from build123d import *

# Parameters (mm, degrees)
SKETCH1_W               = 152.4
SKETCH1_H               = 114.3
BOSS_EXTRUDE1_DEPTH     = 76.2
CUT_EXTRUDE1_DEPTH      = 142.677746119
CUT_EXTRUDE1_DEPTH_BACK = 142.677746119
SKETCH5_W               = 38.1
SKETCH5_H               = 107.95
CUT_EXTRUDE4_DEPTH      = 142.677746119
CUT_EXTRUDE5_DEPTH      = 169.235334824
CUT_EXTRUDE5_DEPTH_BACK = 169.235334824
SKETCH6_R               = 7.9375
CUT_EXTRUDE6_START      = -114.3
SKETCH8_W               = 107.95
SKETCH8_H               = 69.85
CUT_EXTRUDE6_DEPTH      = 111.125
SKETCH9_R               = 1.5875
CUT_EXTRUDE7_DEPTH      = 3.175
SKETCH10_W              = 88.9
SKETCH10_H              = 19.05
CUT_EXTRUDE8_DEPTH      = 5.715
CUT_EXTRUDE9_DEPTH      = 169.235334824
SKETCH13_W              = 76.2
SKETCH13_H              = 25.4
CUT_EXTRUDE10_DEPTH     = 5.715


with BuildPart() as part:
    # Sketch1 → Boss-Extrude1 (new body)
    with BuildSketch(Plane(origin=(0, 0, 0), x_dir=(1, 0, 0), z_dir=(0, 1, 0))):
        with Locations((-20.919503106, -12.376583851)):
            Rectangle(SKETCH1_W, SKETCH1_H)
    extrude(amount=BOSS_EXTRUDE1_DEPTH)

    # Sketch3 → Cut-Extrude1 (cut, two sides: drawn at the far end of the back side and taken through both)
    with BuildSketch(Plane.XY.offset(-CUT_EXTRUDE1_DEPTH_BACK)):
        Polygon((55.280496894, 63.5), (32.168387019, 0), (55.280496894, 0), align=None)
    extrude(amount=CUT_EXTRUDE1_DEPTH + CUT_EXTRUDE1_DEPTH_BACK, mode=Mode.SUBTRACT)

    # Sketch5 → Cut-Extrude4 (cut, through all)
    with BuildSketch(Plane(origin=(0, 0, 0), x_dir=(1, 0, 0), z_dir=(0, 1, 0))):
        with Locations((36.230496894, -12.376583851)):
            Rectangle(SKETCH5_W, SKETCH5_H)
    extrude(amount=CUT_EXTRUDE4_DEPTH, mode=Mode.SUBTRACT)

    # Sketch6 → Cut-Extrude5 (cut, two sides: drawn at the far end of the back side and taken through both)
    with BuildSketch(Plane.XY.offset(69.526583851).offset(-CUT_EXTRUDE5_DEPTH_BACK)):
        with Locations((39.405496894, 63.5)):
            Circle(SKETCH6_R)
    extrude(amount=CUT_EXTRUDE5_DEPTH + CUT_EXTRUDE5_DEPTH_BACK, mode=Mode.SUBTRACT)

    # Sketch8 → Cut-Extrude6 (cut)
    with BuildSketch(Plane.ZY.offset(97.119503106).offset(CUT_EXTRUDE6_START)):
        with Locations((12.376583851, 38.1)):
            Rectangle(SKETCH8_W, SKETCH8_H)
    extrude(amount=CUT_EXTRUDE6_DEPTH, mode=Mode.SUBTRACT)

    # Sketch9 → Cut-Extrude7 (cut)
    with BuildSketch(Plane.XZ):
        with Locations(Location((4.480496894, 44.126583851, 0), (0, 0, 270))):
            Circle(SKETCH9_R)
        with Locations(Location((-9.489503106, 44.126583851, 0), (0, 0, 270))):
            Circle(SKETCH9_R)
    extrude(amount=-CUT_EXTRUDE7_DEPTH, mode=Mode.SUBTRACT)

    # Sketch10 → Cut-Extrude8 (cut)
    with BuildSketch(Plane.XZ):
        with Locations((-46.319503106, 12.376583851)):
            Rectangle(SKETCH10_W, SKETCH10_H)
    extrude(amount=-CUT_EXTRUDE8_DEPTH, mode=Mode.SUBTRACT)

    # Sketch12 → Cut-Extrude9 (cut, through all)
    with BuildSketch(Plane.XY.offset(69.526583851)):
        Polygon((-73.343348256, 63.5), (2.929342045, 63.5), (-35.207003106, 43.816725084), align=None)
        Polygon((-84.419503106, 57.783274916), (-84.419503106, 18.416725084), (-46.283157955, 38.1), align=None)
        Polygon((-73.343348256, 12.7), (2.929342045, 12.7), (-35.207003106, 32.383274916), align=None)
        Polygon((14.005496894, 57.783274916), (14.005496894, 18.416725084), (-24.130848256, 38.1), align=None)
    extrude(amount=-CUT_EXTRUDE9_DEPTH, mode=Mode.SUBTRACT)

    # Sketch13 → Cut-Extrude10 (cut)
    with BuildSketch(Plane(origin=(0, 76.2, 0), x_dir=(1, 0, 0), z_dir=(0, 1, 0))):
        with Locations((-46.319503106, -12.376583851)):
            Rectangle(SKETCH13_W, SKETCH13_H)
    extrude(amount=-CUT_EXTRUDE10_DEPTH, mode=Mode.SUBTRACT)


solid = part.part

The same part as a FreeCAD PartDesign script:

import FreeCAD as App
import Part
import Sketcher
from FreeCAD import Vector
Q = App.Units.Quantity

doc = App.newDocument("Part")
body = doc.addObject("PartDesign::Body", "Body")

# Sketch on XZ plane
sketch1 = body.newObject("Sketcher::SketchObject", "Sketch")
sketch1.AttachmentSupport = (doc.getObject("XZ_Plane"), [""])
sketch1.MapMode = "FlatFace"
sketch1.addGeometry([
    Part.LineSegment(Vector(-97, -45, 0), Vector(-97, 70, 0)),
    Part.LineSegment(Vector(-97, 70, 0), Vector(55, 70, 0)),
    Part.LineSegment(Vector(55, 70, 0), Vector(55, -45, 0)),
    Part.LineSegment(Vector(55, -45, 0), Vector(-97, -45, 0)),
], False)
sketch1.addConstraint([
    Sketcher.Constraint("Coincident", 0, 2, 1, 1),
    Sketcher.Constraint("Coincident", 1, 2, 2, 1),
    Sketcher.Constraint("Coincident", 2, 2, 3, 1),
    Sketcher.Constraint("Coincident", 3, 2, 0, 1),
    Sketcher.Constraint("Vertical", 0),
    Sketcher.Constraint("Horizontal", 1),
    Sketcher.Constraint("Vertical", 2),
    Sketcher.Constraint("Horizontal", 3),
    Sketcher.Constraint("DistanceX", 1, 1, 1, 2, Q("6 in")),
    Sketcher.Constraint("DistanceY", 0, 1, 0, 2, Q("4.5 in")),
    Sketcher.Constraint("DistanceX", 0, 2, -1, 1, Q("97.119503 mm")),
    Sketcher.Constraint("DistanceY", -1, 1, 0, 2, Q("69.526584 mm")),
])
pad1 = body.newObject("PartDesign::Pad", "Pad")
pad1.Profile = sketch1
pad1.Length = Q("3 in")
pad1.Reversed = True

# Sketch on XY plane
sketch2 = body.newObject("Sketcher::SketchObject", "Sketch001")
sketch2.AttachmentSupport = (doc.getObject("XY_Plane"), [""])
sketch2.MapMode = "FlatFace"
sketch2.addGeometry([
    Part.LineSegment(Vector(55, 64, 0), Vector(32, 0, 0)),
    Part.LineSegment(Vector(32, 0, 0), Vector(55, 0, 0)),
    Part.LineSegment(Vector(55, 0, 0), Vector(55, 64, 0)),
], False)
sketch2.addConstraint([
    Sketcher.Constraint("Coincident", 0, 2, 1, 1),
    Sketcher.Constraint("Coincident", 1, 2, 2, 1),
    Sketcher.Constraint("Coincident", 2, 2, 0, 1),
    Sketcher.Constraint("Horizontal", 1),
    Sketcher.Constraint("Vertical", 2),
    Sketcher.Constraint("PointOnObject", 0, 2, -1),
    Sketcher.Constraint("DistanceY", 2, 1, 2, 2, Q("2.5 in")),
    Sketcher.Constraint("Angle", 0, Q("-110 deg")),
    Sketcher.Constraint("DistanceX", -1, 1, 0, 2, Q("32.168387 mm")),
])
pocket1 = body.newObject("PartDesign::Pocket", "Pocket")
pocket1.Profile = sketch2
pocket1.Type = "ThroughAll"
pocket1.Midplane = True

# Sketch on XZ plane
sketch3 = body.newObject("Sketcher::SketchObject", "Sketch002")
sketch3.AttachmentSupport = (doc.getObject("XZ_Plane"), [""])
sketch3.MapMode = "FlatFace"
sketch3.addGeometry([
    Part.LineSegment(Vector(17, -42, 0), Vector(17, 66, 0)),
    Part.LineSegment(Vector(17, 66, 0), Vector(55, 66, 0)),
    Part.LineSegment(Vector(55, 66, 0), Vector(55, -42, 0)),
    Part.LineSegment(Vector(55, -42, 0), Vector(17, -42, 0)),
], False)
sketch3.addConstraint([
    Sketcher.Constraint("Coincident", 0, 2, 1, 1),
    Sketcher.Constraint("Coincident", 1, 2, 2, 1),
    Sketcher.Constraint("Coincident", 2, 2, 3, 1),
    Sketcher.Constraint("Coincident", 3, 2, 0, 1),
    Sketcher.Constraint("Vertical", 0),
    Sketcher.Constraint("Horizontal", 1),
    Sketcher.Constraint("Vertical", 2),
    Sketcher.Constraint("Horizontal", 3),
    Sketcher.Constraint("DistanceX", 1, 1, 1, 2, Q("1.5 in")),
    Sketcher.Constraint("DistanceY", 0, 1, 0, 2, Q("4.25 in")),
    Sketcher.Constraint("DistanceX", -1, 1, 0, 2, Q("17.180497 mm")),
    Sketcher.Constraint("DistanceY", -1, 1, 0, 2, Q("66.351584 mm")),
])
pocket2 = body.newObject("PartDesign::Pocket", "Pocket001")
pocket2.Profile = sketch3
pocket2.Type = "ThroughAll"

# Sketch on XY plane
sketch4 = body.newObject("Sketcher::SketchObject", "Sketch003")
sketch4.AttachmentSupport = (doc.getObject("XY_Plane"), [""])
sketch4.MapMode = "FlatFace"
sketch4.AttachmentOffset = App.Placement(Vector(0, 0, 69.526584), App.Rotation())
sketch4.addGeometry(Part.Circle(Vector(39, 64, 0), Vector(0, 0, 1), 8), False)
sketch4.addConstraint([
    Sketcher.Constraint("Diameter", 0, Q("0.625 in")),
    Sketcher.Constraint("DistanceY", -1, 1, 0, 3, Q("2.5 in")),
    Sketcher.Constraint("DistanceX", -1, 1, 0, 3, Q("39.405497 mm")),
])
pocket3 = body.newObject("PartDesign::Pocket", "Pocket002")
pocket3.Profile = sketch4
pocket3.Type = "ThroughAll"
pocket3.Midplane = True

# Sketch on YZ plane
sketch5 = body.newObject("Sketcher::SketchObject", "Sketch004")
sketch5.AttachmentSupport = (doc.getObject("YZ_Plane"), [""])
sketch5.MapMode = "FlatFace"
sketch5.AttachmentOffset = App.Placement(Vector(0, 0, 17.180497), App.Rotation())
sketch5.addGeometry([
    Part.LineSegment(Vector(73, -42, 0), Vector(3, -42, 0)),
    Part.LineSegment(Vector(3, -42, 0), Vector(3, 66, 0)),
    Part.LineSegment(Vector(3, 66, 0), Vector(73, 66, 0)),
    Part.LineSegment(Vector(73, 66, 0), Vector(73, -42, 0)),
], False)
sketch5.addConstraint([
    Sketcher.Constraint("Coincident", 0, 2, 1, 1),
    Sketcher.Constraint("Coincident", 1, 2, 2, 1),
    Sketcher.Constraint("Coincident", 2, 2, 3, 1),
    Sketcher.Constraint("Coincident", 3, 2, 0, 1),
    Sketcher.Constraint("Horizontal", 0),
    Sketcher.Constraint("Vertical", 1),
    Sketcher.Constraint("Horizontal", 2),
    Sketcher.Constraint("Vertical", 3),
    Sketcher.Constraint("DistanceX", 0, 2, 0, 1, Q("2.75 in")),
    Sketcher.Constraint("DistanceY", 1, 1, 1, 2, Q("4.25 in")),
    Sketcher.Constraint("DistanceX", -1, 1, 0, 2, Q("0.125 in")),
    Sketcher.Constraint("DistanceY", 0, 2, -1, 1, Q("41.598416 mm")),
])
pocket4 = body.newObject("PartDesign::Pocket", "Pocket003")
pocket4.Profile = sketch5
pocket4.Length = Q("4.375 in")

# Sketch on XZ plane
sketch6 = body.newObject("Sketcher::SketchObject", "Sketch005")
sketch6.AttachmentSupport = (doc.getObject("XZ_Plane"), [""])
sketch6.MapMode = "FlatFace"
sketch6.addGeometry([
    Part.Circle(Vector(4.5, 44.1, 0), Vector(0, 0, 1), 1.6),
    Part.Circle(Vector(-9.5, 44.1, 0), Vector(0, 0, 1), 1.6),
], False)
sketch6.addConstraint([
    Sketcher.Constraint("Equal", 0, 1),
    Sketcher.Constraint("Horizontal", 0, 3, 1, 3),
    Sketcher.Constraint("Diameter", 0, Q("0.125 in")),
    Sketcher.Constraint("DistanceX", 1, 3, 0, 3, Q("0.55 in")),
    Sketcher.Constraint("DistanceX", -1, 1, 0, 3, Q("4.480497 mm")),
    Sketcher.Constraint("DistanceY", -1, 1, 0, 3, Q("44.126584 mm")),
])
pocket5 = body.newObject("PartDesign::Pocket", "Pocket004")
pocket5.Profile = sketch6
pocket5.Length = Q("0.125 in")

# Sketch on XZ plane
sketch7 = body.newObject("Sketcher::SketchObject", "Sketch006")
sketch7.AttachmentSupport = (doc.getObject("XZ_Plane"), [""])
sketch7.MapMode = "FlatFace"
sketch7.addGeometry([
    Part.LineSegment(Vector(-91, 22, 0), Vector(-91, 3, 0)),
    Part.LineSegment(Vector(-91, 3, 0), Vector(-2, 3, 0)),
    Part.LineSegment(Vector(-2, 3, 0), Vector(-2, 22, 0)),
    Part.LineSegment(Vector(-2, 22, 0), Vector(-91, 22, 0)),
], False)
sketch7.addConstraint([
    Sketcher.Constraint("Coincident", 0, 2, 1, 1),
    Sketcher.Constraint("Coincident", 1, 2, 2, 1),
    Sketcher.Constraint("Coincident", 2, 2, 3, 1),
    Sketcher.Constraint("Coincident", 3, 2, 0, 1),
    Sketcher.Constraint("Vertical", 0),
    Sketcher.Constraint("Horizontal", 1),
    Sketcher.Constraint("Vertical", 2),
    Sketcher.Constraint("Horizontal", 3),
    Sketcher.Constraint("DistanceX", 1, 1, 1, 2, Q("3.5 in")),
    Sketcher.Constraint("DistanceY", 0, 2, 0, 1, Q("0.75 in")),
    Sketcher.Constraint("DistanceX", 0, 2, -1, 1, Q("90.769503 mm")),
    Sketcher.Constraint("DistanceY", -1, 1, 0, 2, Q("2.851584 mm")),
])
pocket6 = body.newObject("PartDesign::Pocket", "Pocket005")
pocket6.Profile = sketch7
pocket6.Length = Q("0.225 in")

# Sketch on XY plane
sketch8 = body.newObject("Sketcher::SketchObject", "Sketch007")
sketch8.AttachmentSupport = (doc.getObject("XY_Plane"), [""])
sketch8.MapMode = "FlatFace"
sketch8.AttachmentOffset = App.Placement(Vector(0, 0, 69.526584), App.Rotation())
sketch8.addGeometry([
    Part.LineSegment(Vector(3, 64, 0), Vector(-73, 64, 0)),  # 0
    Part.LineSegment(Vector(-73, 64, 0), Vector(-35, 44, 0)),  # 1
    Part.LineSegment(Vector(-35, 44, 0), Vector(3, 64, 0)),  # 2
    Part.LineSegment(Vector(-84, 58, 0), Vector(-84, 18, 0)),  # 3
    Part.LineSegment(Vector(-84, 18, 0), Vector(-46, 38, 0)),  # 4
    Part.LineSegment(Vector(-46, 38, 0), Vector(-84, 58, 0)),  # 5
    Part.LineSegment(Vector(-73, 13, 0), Vector(3, 13, 0)),  # 6
    Part.LineSegment(Vector(3, 13, 0), Vector(-35, 32, 0)),  # 7
    Part.LineSegment(Vector(-35, 32, 0), Vector(-73, 13, 0)),  # 8
    Part.LineSegment(Vector(14, 18, 0), Vector(14, 58, 0)),  # 9
    Part.LineSegment(Vector(14, 58, 0), Vector(-24, 38, 0)),  # 10
    Part.LineSegment(Vector(-24, 38, 0), Vector(14, 18, 0)),  # 11
], False)
sketch8.addConstraint([
    Sketcher.Constraint("Coincident", 0, 2, 1, 1),
    Sketcher.Constraint("Coincident", 1, 2, 2, 1),
    Sketcher.Constraint("Coincident", 2, 2, 0, 1),
    Sketcher.Constraint("Coincident", 3, 2, 4, 1),
    Sketcher.Constraint("Coincident", 4, 2, 5, 1),
    Sketcher.Constraint("Coincident", 5, 2, 3, 1),
    Sketcher.Constraint("Coincident", 6, 2, 7, 1),
    Sketcher.Constraint("Coincident", 7, 2, 8, 1),
    Sketcher.Constraint("Coincident", 8, 2, 6, 1),
    Sketcher.Constraint("Coincident", 9, 2, 10, 1),
    Sketcher.Constraint("Coincident", 10, 2, 11, 1),
    Sketcher.Constraint("Coincident", 11, 2, 9, 1),
    Sketcher.Constraint("Horizontal", 0),
    Sketcher.Constraint("Vertical", 3),
    Sketcher.Constraint("Horizontal", 6),
    Sketcher.Constraint("Vertical", 9),
    Sketcher.Constraint("Parallel", 2, 4),
    Sketcher.Constraint("Parallel", 1, 5),
    Sketcher.Constraint("Parallel", 5, 7),
    Sketcher.Constraint("Parallel", 4, 8),
    Sketcher.Constraint("Parallel", 8, 10),
    Sketcher.Constraint("Parallel", 7, 11),
    Sketcher.Constraint("Horizontal", 5, 2, 9, 2),
    Sketcher.Constraint("Horizontal", 4, 2, 10, 2),
    Sketcher.Constraint("Horizontal", 3, 2, 11, 2),
    Sketcher.Constraint("Vertical", 2, 2, 6, 2),
    Sketcher.Constraint("Vertical", 1, 2, 7, 2),
    Sketcher.Constraint("Equal", 2, 4),
    Sketcher.Constraint("DistanceY", 3, 2, 1, 2, Q("1 in")),
    Sketcher.Constraint("DistanceY", 6, 2, 2, 2, Q("2 in")),
    Sketcher.Constraint("DistanceY", -1, 1, 0, 2, Q("2.5 in")),
    Sketcher.Constraint("DistanceX", 3, 2, 1, 2, Q("1.9375 in")),
    Sketcher.Constraint("DistanceX", 1, 2, 9, 2, Q("1.9375 in")),
    Sketcher.Constraint("DistanceX", 0, 2, 0, 1, Q("76.27269 mm")),
    Sketcher.Constraint("DistanceY", 3, 2, 3, 1, Q("39.36655 mm")),
    Sketcher.Constraint("DistanceX", 0, 2, -1, 1, Q("73.343348 mm")),
])
pocket7 = body.newObject("PartDesign::Pocket", "Pocket006")
pocket7.Profile = sketch8
pocket7.Type = "ThroughAll"

# Sketch on XZ plane
sketch9 = body.newObject("Sketcher::SketchObject", "Sketch008")
sketch9.AttachmentSupport = (doc.getObject("XZ_Plane"), [""])
sketch9.MapMode = "FlatFace"
sketch9.AttachmentOffset = App.Placement(Vector(0, 0, -3 * 25.4), App.Rotation())
sketch9.addGeometry([
    Part.LineSegment(Vector(-84, 0, 0), Vector(-84, 25, 0)),
    Part.LineSegment(Vector(-84, 25, 0), Vector(-8, 25, 0)),
    Part.LineSegment(Vector(-8, 25, 0), Vector(-8, 0, 0)),
    Part.LineSegment(Vector(-8, 0, 0), Vector(-84, 0, 0)),
], False)
sketch9.addConstraint([
    Sketcher.Constraint("Coincident", 0, 2, 1, 1),
    Sketcher.Constraint("Coincident", 1, 2, 2, 1),
    Sketcher.Constraint("Coincident", 2, 2, 3, 1),
    Sketcher.Constraint("Coincident", 3, 2, 0, 1),
    Sketcher.Constraint("Vertical", 0),
    Sketcher.Constraint("Horizontal", 1),
    Sketcher.Constraint("Vertical", 2),
    Sketcher.Constraint("Horizontal", 3),
    Sketcher.Constraint("DistanceX", 1, 1, 1, 2, Q("3 in")),
    Sketcher.Constraint("DistanceY", 0, 1, 0, 2, Q("1 in")),
    Sketcher.Constraint("DistanceX", 0, 2, -1, 1, Q("84.419503 mm")),
    Sketcher.Constraint("DistanceY", -1, 1, 0, 2, Q("25.076584 mm")),
])
pocket8 = body.newObject("PartDesign::Pocket", "Pocket007")
pocket8.Profile = sketch9
pocket8.Length = Q("0.225 in")
pocket8.Reversed = True

doc.recompute()
